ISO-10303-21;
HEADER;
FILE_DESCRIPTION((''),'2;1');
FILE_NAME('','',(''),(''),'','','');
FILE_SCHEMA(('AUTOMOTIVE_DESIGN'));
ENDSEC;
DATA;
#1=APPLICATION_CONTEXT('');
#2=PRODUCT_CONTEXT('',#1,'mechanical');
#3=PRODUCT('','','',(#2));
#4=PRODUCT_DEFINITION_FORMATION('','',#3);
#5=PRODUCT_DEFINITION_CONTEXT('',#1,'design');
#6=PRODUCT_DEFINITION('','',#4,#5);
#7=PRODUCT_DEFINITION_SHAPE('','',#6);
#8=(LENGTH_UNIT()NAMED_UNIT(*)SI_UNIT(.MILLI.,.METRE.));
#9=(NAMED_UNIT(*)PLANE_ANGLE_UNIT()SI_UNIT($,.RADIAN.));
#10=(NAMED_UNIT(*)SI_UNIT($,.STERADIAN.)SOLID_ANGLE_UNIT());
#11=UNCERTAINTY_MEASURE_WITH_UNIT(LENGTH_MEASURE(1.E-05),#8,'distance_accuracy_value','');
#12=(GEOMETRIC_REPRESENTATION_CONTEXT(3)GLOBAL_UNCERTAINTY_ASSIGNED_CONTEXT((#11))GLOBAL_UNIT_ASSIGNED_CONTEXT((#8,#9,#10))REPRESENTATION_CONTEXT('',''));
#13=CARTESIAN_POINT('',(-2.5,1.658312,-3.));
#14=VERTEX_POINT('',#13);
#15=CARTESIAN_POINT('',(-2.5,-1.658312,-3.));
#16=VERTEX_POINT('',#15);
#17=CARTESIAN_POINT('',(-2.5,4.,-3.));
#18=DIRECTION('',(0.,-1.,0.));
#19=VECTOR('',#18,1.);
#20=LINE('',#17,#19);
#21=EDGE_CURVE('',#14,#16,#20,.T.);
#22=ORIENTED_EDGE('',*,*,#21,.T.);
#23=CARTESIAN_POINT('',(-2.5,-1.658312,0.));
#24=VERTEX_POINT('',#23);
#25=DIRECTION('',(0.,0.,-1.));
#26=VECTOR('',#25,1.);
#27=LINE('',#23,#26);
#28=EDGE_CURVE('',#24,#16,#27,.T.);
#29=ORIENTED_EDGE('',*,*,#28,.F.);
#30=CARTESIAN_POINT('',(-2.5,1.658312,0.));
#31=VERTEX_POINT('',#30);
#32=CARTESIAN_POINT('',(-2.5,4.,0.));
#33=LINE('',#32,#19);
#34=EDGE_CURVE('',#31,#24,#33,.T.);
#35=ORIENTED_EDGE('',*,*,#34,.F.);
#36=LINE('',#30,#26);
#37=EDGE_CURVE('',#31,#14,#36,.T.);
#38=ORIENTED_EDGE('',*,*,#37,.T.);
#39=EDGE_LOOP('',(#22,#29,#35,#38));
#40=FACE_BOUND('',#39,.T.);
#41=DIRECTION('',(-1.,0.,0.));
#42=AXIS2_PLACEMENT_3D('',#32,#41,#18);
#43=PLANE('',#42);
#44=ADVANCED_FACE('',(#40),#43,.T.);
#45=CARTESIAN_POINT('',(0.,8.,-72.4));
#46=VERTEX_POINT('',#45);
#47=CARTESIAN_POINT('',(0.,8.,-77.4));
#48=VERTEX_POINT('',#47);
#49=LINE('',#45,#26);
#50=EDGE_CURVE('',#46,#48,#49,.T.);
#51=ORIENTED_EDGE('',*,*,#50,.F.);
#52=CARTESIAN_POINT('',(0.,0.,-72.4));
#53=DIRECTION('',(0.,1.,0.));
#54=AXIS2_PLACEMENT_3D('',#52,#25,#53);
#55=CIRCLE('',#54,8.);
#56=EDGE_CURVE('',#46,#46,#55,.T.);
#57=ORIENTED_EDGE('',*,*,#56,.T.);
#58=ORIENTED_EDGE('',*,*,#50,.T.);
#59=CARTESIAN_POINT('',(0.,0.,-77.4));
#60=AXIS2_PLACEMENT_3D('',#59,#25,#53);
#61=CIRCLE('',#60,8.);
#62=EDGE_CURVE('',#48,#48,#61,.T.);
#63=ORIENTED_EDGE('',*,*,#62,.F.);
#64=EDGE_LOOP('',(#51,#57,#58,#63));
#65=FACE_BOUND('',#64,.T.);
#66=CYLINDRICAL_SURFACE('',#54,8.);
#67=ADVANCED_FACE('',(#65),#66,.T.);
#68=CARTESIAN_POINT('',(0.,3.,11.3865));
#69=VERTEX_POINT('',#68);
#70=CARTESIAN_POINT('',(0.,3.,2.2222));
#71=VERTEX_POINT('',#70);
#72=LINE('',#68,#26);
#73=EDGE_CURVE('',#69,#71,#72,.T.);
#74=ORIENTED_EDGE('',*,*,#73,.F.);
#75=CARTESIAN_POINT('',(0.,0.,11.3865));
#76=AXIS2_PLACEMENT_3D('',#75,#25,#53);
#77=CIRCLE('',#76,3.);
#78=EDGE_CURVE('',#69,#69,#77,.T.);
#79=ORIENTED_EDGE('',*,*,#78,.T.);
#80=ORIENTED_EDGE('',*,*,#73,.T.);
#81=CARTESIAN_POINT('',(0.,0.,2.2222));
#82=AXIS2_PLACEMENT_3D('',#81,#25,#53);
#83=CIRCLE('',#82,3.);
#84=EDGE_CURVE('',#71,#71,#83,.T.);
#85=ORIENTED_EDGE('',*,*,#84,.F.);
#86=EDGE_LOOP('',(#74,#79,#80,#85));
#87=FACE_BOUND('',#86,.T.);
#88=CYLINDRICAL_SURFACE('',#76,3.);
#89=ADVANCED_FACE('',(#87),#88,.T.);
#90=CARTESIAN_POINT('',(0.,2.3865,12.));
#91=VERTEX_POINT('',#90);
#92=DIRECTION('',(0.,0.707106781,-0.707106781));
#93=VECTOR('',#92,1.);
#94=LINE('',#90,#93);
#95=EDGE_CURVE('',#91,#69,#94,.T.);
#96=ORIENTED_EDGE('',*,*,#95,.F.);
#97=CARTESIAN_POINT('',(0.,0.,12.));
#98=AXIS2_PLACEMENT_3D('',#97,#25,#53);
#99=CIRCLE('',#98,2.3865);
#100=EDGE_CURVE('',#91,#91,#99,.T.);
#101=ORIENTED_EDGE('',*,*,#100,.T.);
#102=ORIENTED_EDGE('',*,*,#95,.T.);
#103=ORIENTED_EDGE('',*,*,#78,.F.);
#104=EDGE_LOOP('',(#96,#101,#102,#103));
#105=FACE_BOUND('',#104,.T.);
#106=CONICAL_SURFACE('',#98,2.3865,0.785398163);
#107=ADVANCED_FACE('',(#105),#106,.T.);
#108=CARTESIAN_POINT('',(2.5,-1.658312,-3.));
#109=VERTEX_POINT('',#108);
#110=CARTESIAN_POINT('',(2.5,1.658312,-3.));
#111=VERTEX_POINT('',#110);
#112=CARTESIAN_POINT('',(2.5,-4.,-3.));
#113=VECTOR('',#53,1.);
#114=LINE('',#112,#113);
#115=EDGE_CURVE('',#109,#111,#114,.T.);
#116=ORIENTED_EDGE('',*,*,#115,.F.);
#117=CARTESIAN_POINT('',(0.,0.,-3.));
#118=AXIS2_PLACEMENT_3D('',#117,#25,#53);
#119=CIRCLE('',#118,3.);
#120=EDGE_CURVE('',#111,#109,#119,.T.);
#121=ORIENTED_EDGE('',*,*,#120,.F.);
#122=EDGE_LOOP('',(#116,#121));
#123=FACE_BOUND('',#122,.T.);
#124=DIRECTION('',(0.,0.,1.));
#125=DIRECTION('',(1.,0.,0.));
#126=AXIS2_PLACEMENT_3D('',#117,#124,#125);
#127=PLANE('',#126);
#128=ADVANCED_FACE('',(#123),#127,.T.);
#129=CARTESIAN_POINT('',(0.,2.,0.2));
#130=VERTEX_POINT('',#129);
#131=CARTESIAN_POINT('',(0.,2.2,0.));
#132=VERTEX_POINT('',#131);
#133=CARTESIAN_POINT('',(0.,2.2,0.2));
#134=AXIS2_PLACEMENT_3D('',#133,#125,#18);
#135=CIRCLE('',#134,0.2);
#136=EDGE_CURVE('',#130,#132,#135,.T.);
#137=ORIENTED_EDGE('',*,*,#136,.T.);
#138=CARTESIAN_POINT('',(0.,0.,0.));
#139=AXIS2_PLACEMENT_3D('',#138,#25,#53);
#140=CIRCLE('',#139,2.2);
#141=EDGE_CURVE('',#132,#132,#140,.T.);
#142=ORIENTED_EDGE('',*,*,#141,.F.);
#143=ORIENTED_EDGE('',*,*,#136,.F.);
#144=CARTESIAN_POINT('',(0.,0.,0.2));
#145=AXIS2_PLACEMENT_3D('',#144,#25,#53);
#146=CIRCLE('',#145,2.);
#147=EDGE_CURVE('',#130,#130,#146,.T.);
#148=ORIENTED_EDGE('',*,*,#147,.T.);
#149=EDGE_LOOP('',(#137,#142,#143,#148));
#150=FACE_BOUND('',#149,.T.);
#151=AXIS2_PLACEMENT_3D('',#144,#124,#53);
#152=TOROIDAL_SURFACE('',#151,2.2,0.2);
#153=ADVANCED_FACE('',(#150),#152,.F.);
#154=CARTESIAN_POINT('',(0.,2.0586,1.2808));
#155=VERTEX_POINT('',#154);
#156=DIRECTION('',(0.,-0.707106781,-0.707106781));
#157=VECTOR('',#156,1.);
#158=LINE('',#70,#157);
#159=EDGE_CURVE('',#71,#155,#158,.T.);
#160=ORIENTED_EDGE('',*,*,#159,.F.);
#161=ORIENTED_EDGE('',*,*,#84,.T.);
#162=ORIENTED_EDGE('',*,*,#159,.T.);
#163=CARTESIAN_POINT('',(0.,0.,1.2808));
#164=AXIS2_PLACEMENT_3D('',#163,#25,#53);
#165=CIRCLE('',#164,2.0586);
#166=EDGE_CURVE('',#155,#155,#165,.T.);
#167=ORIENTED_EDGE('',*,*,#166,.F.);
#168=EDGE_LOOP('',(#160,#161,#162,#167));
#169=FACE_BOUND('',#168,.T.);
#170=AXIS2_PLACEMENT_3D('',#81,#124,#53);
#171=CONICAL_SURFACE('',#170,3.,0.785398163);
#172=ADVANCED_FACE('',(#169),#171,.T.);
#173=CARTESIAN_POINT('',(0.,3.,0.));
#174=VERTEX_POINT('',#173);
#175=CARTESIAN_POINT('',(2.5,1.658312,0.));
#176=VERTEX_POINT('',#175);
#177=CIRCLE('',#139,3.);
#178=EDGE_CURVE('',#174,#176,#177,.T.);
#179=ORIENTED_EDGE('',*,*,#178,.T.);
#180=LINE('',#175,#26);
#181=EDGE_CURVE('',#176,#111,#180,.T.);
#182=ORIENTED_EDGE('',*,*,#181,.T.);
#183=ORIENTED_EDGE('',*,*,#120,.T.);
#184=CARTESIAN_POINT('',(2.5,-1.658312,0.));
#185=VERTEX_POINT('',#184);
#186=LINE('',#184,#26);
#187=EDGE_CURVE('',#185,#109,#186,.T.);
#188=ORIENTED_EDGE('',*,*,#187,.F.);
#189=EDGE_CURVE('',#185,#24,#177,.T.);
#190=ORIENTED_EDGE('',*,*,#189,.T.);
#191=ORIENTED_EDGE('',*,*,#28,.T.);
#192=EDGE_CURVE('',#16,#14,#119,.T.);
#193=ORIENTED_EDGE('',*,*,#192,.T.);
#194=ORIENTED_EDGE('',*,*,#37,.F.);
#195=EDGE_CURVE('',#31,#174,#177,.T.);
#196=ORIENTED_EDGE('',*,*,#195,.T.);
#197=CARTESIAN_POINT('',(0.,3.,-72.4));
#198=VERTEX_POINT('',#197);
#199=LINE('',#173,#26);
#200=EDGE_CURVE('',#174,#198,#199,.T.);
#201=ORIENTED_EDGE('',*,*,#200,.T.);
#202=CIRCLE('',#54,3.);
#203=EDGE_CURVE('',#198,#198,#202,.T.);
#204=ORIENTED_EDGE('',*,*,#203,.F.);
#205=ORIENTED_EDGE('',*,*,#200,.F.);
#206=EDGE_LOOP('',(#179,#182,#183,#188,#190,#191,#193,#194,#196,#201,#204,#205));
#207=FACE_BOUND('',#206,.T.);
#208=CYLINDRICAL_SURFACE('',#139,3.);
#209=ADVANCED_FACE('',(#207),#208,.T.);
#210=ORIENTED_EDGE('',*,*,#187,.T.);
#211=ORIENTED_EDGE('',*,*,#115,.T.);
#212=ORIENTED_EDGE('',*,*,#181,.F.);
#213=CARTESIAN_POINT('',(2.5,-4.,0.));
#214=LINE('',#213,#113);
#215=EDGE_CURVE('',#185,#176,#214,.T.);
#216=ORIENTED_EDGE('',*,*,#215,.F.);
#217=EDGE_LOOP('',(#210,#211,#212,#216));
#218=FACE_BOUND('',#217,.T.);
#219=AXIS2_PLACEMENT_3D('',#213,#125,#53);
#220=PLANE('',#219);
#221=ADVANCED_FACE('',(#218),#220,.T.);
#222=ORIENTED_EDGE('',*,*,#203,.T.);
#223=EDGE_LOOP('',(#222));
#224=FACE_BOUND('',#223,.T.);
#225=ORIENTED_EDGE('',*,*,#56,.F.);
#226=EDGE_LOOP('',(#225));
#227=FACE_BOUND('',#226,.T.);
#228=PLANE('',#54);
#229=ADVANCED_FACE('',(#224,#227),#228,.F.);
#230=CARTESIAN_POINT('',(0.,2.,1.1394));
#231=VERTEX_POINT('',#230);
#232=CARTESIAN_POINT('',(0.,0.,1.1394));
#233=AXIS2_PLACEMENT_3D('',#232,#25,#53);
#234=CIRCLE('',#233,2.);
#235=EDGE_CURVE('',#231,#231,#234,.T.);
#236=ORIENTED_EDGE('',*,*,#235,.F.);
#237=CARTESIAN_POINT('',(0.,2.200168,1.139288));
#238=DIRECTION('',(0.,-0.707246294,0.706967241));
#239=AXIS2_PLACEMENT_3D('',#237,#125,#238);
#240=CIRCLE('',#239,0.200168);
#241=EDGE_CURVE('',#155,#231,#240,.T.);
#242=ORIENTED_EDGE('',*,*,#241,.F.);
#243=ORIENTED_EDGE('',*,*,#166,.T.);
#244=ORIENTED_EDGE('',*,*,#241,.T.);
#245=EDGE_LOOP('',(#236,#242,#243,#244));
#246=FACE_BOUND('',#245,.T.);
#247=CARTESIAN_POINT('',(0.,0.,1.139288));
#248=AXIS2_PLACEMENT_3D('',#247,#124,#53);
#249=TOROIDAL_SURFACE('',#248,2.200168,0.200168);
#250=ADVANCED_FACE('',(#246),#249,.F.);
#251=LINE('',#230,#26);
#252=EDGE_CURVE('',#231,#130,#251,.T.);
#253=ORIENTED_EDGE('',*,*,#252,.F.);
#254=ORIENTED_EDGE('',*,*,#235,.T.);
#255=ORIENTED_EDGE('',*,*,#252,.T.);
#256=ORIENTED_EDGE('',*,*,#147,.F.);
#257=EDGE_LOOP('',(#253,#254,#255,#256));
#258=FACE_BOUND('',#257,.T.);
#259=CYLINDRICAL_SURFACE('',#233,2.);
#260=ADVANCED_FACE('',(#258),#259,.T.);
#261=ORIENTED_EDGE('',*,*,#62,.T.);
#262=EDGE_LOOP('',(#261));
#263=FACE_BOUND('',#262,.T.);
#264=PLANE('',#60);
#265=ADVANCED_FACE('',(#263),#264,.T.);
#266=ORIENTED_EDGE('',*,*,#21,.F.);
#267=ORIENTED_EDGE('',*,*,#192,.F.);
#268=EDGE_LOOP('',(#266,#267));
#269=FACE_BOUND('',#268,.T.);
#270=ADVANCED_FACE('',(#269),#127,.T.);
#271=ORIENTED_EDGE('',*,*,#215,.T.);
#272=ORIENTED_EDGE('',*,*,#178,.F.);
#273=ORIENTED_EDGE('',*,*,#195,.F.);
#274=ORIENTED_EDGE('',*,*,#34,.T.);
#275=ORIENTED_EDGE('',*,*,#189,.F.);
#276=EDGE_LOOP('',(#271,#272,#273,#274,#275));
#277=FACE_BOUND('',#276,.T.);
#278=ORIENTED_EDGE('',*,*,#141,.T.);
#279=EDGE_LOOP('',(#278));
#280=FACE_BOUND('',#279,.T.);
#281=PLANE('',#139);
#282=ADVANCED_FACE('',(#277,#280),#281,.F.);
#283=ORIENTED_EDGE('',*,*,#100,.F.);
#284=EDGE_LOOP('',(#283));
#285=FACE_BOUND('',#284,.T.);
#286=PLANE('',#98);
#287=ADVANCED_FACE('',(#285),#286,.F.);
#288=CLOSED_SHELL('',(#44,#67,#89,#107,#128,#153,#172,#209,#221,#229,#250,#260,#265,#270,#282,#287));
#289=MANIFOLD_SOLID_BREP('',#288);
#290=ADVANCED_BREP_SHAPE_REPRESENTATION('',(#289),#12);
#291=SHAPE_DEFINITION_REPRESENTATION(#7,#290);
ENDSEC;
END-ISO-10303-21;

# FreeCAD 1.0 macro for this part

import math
import FreeCAD as App
import Part
import Sketcher
from FreeCAD import Vector
Q = App.Units.Quantity

doc = App.newDocument("Part")
params = doc.addObject("Spreadsheet::Sheet", "Params")
for row, (alias, value) in enumerate([
    ("sketch1_width", "8 mm"),
    ("sketch1_width2", "5 mm"),
    ("sketch1_height", "77.4 mm"),
    ("revolution_angle", "360 deg"),
    ("sketch2_radius", "0.2 mm"),
    ("sketch2_height", "12 mm"),
    ("sketch2_width", "2.2 mm"),
    ("revolution2_angle", "360 deg"),
    ("sketch3_width", "9 mm"),
    ("sketch3_width2", "5 mm"),
    ("sketch3_height", "10 mm"),
    ("sketch3_height2", "8 mm"),
    ("pocket1_length", "3 mm"),
], start=1):
    params.set(f"A{row}", alias)
    params.set(f"B{row}", "=" + value)
    params.setAlias(f"B{row}", alias)

body = doc.addObject("PartDesign::Body", "Body")

sketch1 = doc.addObject("Sketcher::SketchObject", "Sketch")
body.addObject(sketch1)
sketch1.AttachmentSupport = (doc.YZ_Plane, [""])
sketch1.MapMode = "FlatFace"
sketch1.addGeometry([
    Part.LineSegment(Vector(0, 0, 0), Vector(0, -77.4, 0)),
    Part.LineSegment(Vector(0, -77.4, 0), Vector(8, -77.4, 0)),
    Part.LineSegment(Vector(8, -77.4, 0), Vector(8, -72.4, 0)),
    Part.LineSegment(Vector(8, -72.4, 0), Vector(3, -72.4, 0)),
    Part.LineSegment(Vector(3, -72.4, 0), Vector(3, 0, 0)),
    Part.LineSegment(Vector(3, 0, 0), Vector(0, 0, 0)),
], False)
sketch1.addConstraint([
    Sketcher.Constraint("Coincident", 0, 2, 1, 1),
    Sketcher.Constraint("Coincident", 1, 2, 2, 1),
    Sketcher.Constraint("Coincident", 2, 2, 3, 1),
    Sketcher.Constraint("Coincident", 3, 2, 4, 1),
    Sketcher.Constraint("Coincident", 4, 2, 5, 1),
    Sketcher.Constraint("Coincident", 5, 2, 0, 1),
    Sketcher.Constraint("Vertical", 0),
    Sketcher.Constraint("Horizontal", 1),
    Sketcher.Constraint("Vertical", 2),
    Sketcher.Constraint("Horizontal", 3),
    Sketcher.Constraint("Vertical", 4),
    Sketcher.Constraint("Horizontal", 5),
    Sketcher.Constraint("Coincident", 5, 2, -1, 1),
    Sketcher.Constraint("Equal", 3, 2),
    Sketcher.Constraint("DistanceX", 1, 1, 1, 2, 8.0),
    Sketcher.Constraint("DistanceX", 3, 2, 3, 1, 5.0),
    Sketcher.Constraint("DistanceY", 0, 2, 0, 1, 77.4),
])
sketch1.setExpression("Constraints[14]", "Params.sketch1_width")
sketch1.setExpression("Constraints[15]", "Params.sketch1_width2")
sketch1.setExpression("Constraints[16]", "Params.sketch1_height")
revolution = doc.addObject("PartDesign::Revolution", "Revolution")
body.addObject(revolution)
revolution.Profile = sketch1
revolution.ReferenceAxis = (sketch1, ["V_Axis"])
revolution.setExpression("Angle", "Params.revolution_angle")

sketch2 = doc.addObject("Sketcher::SketchObject", "Sketch001")
body.addObject(sketch2)
sketch2.AttachmentSupport = (doc.YZ_Plane, [""])
sketch2.MapMode = "FlatFace"
sketch2.addGeometry([
    Part.LineSegment(Vector(0, 12, 0), Vector(0, 0, 0)),
    Part.LineSegment(Vector(0, 0, 0), Vector(2.2, 0, 0)),
    Part.ArcOfCircle(Part.Circle(Vector(2.2, 0.2, 0), Vector(0, 0, 1), 0.2), math.radians(180), math.radians(270)),
    Part.LineSegment(Vector(2, 0.2, 0), Vector(2, 1.14, 0)),
    Part.ArcOfCircle(Part.Circle(Vector(2.2, 1.14, 0), Vector(0, 0, 1), 0.2), math.radians(135), math.radians(180)),
    Part.LineSegment(Vector(2.06, 1.28, 0), Vector(3, 2.22, 0)),
    Part.LineSegment(Vector(3, 2.22, 0), Vector(3, 11.39, 0)),
    Part.LineSegment(Vector(3, 11.39, 0), Vector(2.39, 12, 0)),
    Part.LineSegment(Vector(2.39, 12, 0), Vector(0, 12, 0)),
], False)
sketch2.addConstraint([
    Sketcher.Constraint("Coincident", 0, 2, 1, 1),
    Sketcher.Constraint("Tangent", 1, 2, 2, 2),
    Sketcher.Constraint("Tangent", 2, 1, 3, 1),
    Sketcher.Constraint("Tangent", 3, 2, 4, 2),
    Sketcher.Constraint("Tangent", 4, 1, 5, 1),
    Sketcher.Constraint("Coincident", 5, 2, 6, 1),
    Sketcher.Constraint("Coincident", 6, 2, 7, 1),
    Sketcher.Constraint("Coincident", 7, 2, 8, 1),
    Sketcher.Constraint("Coincident", 8, 2, 0, 1),
    Sketcher.Constraint("Vertical", 0),
    Sketcher.Constraint("Horizontal", 1),
    Sketcher.Constraint("Vertical", 3),
    Sketcher.Constraint("Vertical", 6),
    Sketcher.Constraint("Horizontal", 8),
    Sketcher.Constraint("Coincident", 0, 2, -1, 1),
    Sketcher.Constraint("Equal", 2, 4),
    Sketcher.Constraint("Perpendicular", 5, 7),
    Sketcher.Constraint("Radius", 2, 0.2),
    Sketcher.Constraint("DistanceY", 0, 2, 0, 1, 12.0),
    Sketcher.Constraint("Angle", 5, Q("45 deg")),
    Sketcher.Constraint("DistanceX", 1, 1, 1, 2, 2.2),
    Sketcher.Constraint("DistanceX", -1, 1, 5, 2, 3.0),
    Sketcher.Constraint("DistanceX", 8, 2, 8, 1, 2.3865),
    Sketcher.Constraint("DistanceY", 3, 1, 3, 2, 0.9394),
])
sketch2.setExpression("Constraints[17]", "Params.sketch2_radius")
sketch2.setExpression("Constraints[18]", "Params.sketch2_height")
sketch2.setExpression("Constraints[20]", "Params.sketch2_width")
revolution2 = doc.addObject("PartDesign::Revolution", "Revolution001")
body.addObject(revolution2)
revolution2.Profile = sketch2
revolution2.ReferenceAxis = (sketch2, ["V_Axis"])
revolution2.setExpression("Angle", "Params.revolution2_angle")

sketch3 = doc.addObject("Sketcher::SketchObject", "Sketch002")
body.addObject(sketch3)
sketch3.AttachmentSupport = (doc.XY_Plane, [""])
sketch3.MapMode = "FlatFace"
sketch3.addGeometry([
    Part.LineSegment(Vector(4, 5, 0), Vector(-4, 5, 0)),
    Part.LineSegment(Vector(-4, 5, 0), Vector(-4, -5, 0)),
    Part.LineSegment(Vector(-4, -5, 0), Vector(4, -5, 0)),
    Part.LineSegment(Vector(4, -5, 0), Vector(4, 5, 0)),
    Part.LineSegment(Vector(2, -4, 0), Vector(-2, -4, 0)),
    Part.LineSegment(Vector(-2, -4, 0), Vector(-2, 4, 0)),
    Part.LineSegment(Vector(-2, 4, 0), Vector(2, 4, 0)),
    Part.LineSegment(Vector(2, 4, 0), Vector(2, -4, 0)),
], False)
sketch3.addConstraint([
    Sketcher.Constraint("Coincident", 0, 2, 1, 1),
    Sketcher.Constraint("Coincident", 1, 2, 2, 1),
    Sketcher.Constraint("Coincident", 2, 2, 3, 1),
    Sketcher.Constraint("Coincident", 3, 2, 0, 1),
    Sketcher.Constraint("Coincident", 4, 2, 5, 1),
    Sketcher.Constraint("Coincident", 5, 2, 6, 1),
    Sketcher.Constraint("Coincident", 6, 2, 7, 1),
    Sketcher.Constraint("Coincident", 7, 2, 4, 1),
    Sketcher.Constraint("Horizontal", 0),
    Sketcher.Constraint("Vertical", 1),
    Sketcher.Constraint("Horizontal", 2),
    Sketcher.Constraint("Vertical", 3),
    Sketcher.Constraint("Horizontal", 4),
    Sketcher.Constraint("Vertical", 5),
    Sketcher.Constraint("Horizontal", 6),
    Sketcher.Constraint("Vertical", 7),
    Sketcher.Constraint("Symmetric", 0, 2, 2, 2, -1, 1),
    Sketcher.Constraint("Symmetric", 4, 2, 6, 2, -1, 1),
    Sketcher.Constraint("DistanceX", 0, 2, 0, 1, 9.0),
    Sketcher.Constraint("DistanceX", 4, 2, 4, 1, 5.0),
    Sketcher.Constraint("DistanceY", 1, 2, 1, 1, 10.0),
    Sketcher.Constraint("DistanceY", 5, 1, 5, 2, 8.0),
])
sketch3.setExpression("Constraints[18]", "Params.sketch3_width")
sketch3.setExpression("Constraints[19]", "Params.sketch3_width2")
sketch3.setExpression("Constraints[20]", "Params.sketch3_height")
sketch3.setExpression("Constraints[21]", "Params.sketch3_height2")
pocket1 = doc.addObject("PartDesign::Pocket", "Pocket")
body.addObject(pocket1)
pocket1.Profile = sketch3
pocket1.setExpression("Length", "Params.pocket1_length")

doc.recompute()
